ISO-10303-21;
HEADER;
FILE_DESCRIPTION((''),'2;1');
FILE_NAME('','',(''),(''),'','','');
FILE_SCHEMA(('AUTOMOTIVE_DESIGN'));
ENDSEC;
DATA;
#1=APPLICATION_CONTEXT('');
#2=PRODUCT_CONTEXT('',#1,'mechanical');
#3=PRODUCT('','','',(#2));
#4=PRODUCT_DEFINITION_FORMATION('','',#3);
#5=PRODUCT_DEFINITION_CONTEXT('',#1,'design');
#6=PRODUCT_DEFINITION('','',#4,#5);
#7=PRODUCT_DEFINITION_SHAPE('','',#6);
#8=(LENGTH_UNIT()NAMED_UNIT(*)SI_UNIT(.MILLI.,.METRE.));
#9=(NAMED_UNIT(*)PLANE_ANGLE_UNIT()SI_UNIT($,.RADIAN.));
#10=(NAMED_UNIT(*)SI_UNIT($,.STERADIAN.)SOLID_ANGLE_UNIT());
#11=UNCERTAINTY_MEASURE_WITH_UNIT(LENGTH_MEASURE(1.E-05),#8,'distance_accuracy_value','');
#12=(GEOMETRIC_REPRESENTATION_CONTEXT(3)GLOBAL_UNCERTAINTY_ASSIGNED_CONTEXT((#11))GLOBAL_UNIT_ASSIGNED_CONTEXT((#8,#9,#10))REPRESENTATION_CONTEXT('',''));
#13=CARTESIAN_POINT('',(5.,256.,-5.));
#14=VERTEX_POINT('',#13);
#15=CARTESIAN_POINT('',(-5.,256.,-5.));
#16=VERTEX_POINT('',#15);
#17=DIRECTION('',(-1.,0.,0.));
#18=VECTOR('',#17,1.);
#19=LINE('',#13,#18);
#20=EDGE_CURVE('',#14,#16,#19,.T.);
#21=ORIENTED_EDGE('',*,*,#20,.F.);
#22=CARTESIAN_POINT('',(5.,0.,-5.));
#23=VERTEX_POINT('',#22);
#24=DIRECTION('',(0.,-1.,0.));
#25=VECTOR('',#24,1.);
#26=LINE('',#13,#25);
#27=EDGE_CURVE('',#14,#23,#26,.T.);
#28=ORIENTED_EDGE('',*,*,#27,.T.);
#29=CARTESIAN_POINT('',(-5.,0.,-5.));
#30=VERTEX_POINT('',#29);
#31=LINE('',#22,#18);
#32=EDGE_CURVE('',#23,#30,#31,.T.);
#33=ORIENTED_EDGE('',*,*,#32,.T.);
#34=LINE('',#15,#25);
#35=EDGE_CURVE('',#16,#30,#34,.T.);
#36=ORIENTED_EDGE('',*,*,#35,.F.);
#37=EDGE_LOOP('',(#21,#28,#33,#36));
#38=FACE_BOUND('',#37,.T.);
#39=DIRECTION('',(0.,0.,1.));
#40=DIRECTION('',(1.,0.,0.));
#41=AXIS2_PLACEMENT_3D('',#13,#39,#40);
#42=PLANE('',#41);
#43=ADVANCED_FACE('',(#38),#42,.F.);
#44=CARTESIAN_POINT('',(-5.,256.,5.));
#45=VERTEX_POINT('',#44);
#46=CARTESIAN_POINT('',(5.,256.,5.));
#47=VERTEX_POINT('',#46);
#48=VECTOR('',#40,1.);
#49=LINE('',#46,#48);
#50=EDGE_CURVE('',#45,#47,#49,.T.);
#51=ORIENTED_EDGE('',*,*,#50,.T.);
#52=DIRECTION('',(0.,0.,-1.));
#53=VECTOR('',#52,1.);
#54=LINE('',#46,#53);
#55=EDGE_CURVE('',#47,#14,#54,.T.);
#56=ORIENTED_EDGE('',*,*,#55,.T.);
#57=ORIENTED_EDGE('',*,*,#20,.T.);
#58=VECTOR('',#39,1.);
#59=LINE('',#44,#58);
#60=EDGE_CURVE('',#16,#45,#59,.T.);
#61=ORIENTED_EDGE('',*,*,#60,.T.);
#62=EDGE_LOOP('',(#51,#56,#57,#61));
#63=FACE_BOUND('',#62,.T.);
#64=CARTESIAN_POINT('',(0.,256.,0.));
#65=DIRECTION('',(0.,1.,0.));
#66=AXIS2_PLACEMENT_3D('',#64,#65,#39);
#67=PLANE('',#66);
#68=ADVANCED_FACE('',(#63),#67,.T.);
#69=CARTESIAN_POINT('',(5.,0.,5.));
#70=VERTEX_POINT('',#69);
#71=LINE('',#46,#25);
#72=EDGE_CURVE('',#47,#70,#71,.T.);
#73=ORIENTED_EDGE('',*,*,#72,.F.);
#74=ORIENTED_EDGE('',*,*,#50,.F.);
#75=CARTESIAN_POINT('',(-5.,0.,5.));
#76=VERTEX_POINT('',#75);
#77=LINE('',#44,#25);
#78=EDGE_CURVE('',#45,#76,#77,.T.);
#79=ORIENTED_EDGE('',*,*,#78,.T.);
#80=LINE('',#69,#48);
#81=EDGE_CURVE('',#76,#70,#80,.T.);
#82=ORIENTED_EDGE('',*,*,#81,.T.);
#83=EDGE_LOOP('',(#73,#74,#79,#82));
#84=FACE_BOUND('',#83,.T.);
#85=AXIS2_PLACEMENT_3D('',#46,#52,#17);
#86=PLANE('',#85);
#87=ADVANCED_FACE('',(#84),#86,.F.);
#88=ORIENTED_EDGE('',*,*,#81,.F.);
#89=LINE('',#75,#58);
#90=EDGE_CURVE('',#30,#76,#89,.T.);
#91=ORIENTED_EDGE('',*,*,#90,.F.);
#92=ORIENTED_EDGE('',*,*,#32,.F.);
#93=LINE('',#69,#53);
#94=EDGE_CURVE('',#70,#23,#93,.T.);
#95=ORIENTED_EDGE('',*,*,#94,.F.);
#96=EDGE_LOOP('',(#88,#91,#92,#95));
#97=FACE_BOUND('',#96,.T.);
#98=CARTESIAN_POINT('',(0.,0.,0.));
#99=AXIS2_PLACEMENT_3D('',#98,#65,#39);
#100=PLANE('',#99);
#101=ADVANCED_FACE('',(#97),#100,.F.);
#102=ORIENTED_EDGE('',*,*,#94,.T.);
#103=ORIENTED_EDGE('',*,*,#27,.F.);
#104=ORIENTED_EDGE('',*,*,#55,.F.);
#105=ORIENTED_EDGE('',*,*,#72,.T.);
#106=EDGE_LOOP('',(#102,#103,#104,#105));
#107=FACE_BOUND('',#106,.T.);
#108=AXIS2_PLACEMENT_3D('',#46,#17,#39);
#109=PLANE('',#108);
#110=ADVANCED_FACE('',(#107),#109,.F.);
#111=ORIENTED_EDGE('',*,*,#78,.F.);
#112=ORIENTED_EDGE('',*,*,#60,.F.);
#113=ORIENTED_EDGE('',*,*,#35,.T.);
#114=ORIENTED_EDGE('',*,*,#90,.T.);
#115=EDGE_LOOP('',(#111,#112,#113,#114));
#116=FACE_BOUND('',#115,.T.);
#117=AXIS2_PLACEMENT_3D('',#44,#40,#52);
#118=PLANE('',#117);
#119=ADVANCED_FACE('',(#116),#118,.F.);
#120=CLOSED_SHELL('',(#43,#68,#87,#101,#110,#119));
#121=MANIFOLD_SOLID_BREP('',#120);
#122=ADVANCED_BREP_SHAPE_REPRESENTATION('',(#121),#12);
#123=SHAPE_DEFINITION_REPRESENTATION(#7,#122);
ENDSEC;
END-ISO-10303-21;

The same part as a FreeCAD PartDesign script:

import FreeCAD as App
import Part
import Sketcher

doc = App.newDocument("Part")
params = doc.addObject("Spreadsheet::Sheet", "Params")
for row, (alias, value) in enumerate([
    ("sketch1_width", "10 mm"),
    ("pad1_length", "256 mm"),
], start=1):
    params.set(f"A{row}", alias)
    params.set(f"B{row}", "=" + value)
    params.setAlias(f"B{row}", alias)

body = doc.addObject("PartDesign::Body", "Body")

# Sketch on XZ plane
sketch1 = body.newObject("Sketcher::SketchObject", "Sketch")
sketch1.AttachmentSupport = (doc.getObject("XZ_Plane"), [""])
sketch1.MapMode = "FlatFace"
sketch1.addGeometry(Part.LineSegment(App.Vector(-5, -5, 0), App.Vector(-5, 5, 0)), False)
sketch1.addGeometry(Part.LineSegment(App.Vector(-5, 5, 0), App.Vector(5, 5, 0)), False)
sketch1.addGeometry(Part.LineSegment(App.Vector(5, 5, 0), App.Vector(5, -5, 0)), False)
sketch1.addGeometry(Part.LineSegment(App.Vector(5, -5, 0), App.Vector(-5, -5, 0)), False)
sketch1.addConstraint(Sketcher.Constraint("Coincident", 0, 2, 1, 1))
sketch1.addConstraint(Sketcher.Constraint("Coincident", 1, 2, 2, 1))
sketch1.addConstraint(Sketcher.Constraint("Coincident", 2, 2, 3, 1))
sketch1.addConstraint(Sketcher.Constraint("Coincident", 3, 2, 0, 1))
sketch1.addConstraint(Sketcher.Constraint("Vertical", 0))
sketch1.addConstraint(Sketcher.Constraint("Horizontal", 1))
sketch1.addConstraint(Sketcher.Constraint("Vertical", 2))
sketch1.addConstraint(Sketcher.Constraint("Horizontal", 3))
sketch1.addConstraint(Sketcher.Constraint("Symmetric", 0, 2, 2, 2, -1, 1))
sketch1.addConstraint(Sketcher.Constraint("Equal", 3, 0))
sketch1.addConstraint(Sketcher.Constraint("DistanceX", 1, 1, 1, 2, 10.0))
sketch1.setExpression("Constraints[10]", "Params.sketch1_width")
pad1 = body.newObject("PartDesign::Pad", "Pad")
pad1.Profile = sketch1
pad1.setExpression("Length", "Params.pad1_length")
pad1.Reversed = True

doc.recompute()
